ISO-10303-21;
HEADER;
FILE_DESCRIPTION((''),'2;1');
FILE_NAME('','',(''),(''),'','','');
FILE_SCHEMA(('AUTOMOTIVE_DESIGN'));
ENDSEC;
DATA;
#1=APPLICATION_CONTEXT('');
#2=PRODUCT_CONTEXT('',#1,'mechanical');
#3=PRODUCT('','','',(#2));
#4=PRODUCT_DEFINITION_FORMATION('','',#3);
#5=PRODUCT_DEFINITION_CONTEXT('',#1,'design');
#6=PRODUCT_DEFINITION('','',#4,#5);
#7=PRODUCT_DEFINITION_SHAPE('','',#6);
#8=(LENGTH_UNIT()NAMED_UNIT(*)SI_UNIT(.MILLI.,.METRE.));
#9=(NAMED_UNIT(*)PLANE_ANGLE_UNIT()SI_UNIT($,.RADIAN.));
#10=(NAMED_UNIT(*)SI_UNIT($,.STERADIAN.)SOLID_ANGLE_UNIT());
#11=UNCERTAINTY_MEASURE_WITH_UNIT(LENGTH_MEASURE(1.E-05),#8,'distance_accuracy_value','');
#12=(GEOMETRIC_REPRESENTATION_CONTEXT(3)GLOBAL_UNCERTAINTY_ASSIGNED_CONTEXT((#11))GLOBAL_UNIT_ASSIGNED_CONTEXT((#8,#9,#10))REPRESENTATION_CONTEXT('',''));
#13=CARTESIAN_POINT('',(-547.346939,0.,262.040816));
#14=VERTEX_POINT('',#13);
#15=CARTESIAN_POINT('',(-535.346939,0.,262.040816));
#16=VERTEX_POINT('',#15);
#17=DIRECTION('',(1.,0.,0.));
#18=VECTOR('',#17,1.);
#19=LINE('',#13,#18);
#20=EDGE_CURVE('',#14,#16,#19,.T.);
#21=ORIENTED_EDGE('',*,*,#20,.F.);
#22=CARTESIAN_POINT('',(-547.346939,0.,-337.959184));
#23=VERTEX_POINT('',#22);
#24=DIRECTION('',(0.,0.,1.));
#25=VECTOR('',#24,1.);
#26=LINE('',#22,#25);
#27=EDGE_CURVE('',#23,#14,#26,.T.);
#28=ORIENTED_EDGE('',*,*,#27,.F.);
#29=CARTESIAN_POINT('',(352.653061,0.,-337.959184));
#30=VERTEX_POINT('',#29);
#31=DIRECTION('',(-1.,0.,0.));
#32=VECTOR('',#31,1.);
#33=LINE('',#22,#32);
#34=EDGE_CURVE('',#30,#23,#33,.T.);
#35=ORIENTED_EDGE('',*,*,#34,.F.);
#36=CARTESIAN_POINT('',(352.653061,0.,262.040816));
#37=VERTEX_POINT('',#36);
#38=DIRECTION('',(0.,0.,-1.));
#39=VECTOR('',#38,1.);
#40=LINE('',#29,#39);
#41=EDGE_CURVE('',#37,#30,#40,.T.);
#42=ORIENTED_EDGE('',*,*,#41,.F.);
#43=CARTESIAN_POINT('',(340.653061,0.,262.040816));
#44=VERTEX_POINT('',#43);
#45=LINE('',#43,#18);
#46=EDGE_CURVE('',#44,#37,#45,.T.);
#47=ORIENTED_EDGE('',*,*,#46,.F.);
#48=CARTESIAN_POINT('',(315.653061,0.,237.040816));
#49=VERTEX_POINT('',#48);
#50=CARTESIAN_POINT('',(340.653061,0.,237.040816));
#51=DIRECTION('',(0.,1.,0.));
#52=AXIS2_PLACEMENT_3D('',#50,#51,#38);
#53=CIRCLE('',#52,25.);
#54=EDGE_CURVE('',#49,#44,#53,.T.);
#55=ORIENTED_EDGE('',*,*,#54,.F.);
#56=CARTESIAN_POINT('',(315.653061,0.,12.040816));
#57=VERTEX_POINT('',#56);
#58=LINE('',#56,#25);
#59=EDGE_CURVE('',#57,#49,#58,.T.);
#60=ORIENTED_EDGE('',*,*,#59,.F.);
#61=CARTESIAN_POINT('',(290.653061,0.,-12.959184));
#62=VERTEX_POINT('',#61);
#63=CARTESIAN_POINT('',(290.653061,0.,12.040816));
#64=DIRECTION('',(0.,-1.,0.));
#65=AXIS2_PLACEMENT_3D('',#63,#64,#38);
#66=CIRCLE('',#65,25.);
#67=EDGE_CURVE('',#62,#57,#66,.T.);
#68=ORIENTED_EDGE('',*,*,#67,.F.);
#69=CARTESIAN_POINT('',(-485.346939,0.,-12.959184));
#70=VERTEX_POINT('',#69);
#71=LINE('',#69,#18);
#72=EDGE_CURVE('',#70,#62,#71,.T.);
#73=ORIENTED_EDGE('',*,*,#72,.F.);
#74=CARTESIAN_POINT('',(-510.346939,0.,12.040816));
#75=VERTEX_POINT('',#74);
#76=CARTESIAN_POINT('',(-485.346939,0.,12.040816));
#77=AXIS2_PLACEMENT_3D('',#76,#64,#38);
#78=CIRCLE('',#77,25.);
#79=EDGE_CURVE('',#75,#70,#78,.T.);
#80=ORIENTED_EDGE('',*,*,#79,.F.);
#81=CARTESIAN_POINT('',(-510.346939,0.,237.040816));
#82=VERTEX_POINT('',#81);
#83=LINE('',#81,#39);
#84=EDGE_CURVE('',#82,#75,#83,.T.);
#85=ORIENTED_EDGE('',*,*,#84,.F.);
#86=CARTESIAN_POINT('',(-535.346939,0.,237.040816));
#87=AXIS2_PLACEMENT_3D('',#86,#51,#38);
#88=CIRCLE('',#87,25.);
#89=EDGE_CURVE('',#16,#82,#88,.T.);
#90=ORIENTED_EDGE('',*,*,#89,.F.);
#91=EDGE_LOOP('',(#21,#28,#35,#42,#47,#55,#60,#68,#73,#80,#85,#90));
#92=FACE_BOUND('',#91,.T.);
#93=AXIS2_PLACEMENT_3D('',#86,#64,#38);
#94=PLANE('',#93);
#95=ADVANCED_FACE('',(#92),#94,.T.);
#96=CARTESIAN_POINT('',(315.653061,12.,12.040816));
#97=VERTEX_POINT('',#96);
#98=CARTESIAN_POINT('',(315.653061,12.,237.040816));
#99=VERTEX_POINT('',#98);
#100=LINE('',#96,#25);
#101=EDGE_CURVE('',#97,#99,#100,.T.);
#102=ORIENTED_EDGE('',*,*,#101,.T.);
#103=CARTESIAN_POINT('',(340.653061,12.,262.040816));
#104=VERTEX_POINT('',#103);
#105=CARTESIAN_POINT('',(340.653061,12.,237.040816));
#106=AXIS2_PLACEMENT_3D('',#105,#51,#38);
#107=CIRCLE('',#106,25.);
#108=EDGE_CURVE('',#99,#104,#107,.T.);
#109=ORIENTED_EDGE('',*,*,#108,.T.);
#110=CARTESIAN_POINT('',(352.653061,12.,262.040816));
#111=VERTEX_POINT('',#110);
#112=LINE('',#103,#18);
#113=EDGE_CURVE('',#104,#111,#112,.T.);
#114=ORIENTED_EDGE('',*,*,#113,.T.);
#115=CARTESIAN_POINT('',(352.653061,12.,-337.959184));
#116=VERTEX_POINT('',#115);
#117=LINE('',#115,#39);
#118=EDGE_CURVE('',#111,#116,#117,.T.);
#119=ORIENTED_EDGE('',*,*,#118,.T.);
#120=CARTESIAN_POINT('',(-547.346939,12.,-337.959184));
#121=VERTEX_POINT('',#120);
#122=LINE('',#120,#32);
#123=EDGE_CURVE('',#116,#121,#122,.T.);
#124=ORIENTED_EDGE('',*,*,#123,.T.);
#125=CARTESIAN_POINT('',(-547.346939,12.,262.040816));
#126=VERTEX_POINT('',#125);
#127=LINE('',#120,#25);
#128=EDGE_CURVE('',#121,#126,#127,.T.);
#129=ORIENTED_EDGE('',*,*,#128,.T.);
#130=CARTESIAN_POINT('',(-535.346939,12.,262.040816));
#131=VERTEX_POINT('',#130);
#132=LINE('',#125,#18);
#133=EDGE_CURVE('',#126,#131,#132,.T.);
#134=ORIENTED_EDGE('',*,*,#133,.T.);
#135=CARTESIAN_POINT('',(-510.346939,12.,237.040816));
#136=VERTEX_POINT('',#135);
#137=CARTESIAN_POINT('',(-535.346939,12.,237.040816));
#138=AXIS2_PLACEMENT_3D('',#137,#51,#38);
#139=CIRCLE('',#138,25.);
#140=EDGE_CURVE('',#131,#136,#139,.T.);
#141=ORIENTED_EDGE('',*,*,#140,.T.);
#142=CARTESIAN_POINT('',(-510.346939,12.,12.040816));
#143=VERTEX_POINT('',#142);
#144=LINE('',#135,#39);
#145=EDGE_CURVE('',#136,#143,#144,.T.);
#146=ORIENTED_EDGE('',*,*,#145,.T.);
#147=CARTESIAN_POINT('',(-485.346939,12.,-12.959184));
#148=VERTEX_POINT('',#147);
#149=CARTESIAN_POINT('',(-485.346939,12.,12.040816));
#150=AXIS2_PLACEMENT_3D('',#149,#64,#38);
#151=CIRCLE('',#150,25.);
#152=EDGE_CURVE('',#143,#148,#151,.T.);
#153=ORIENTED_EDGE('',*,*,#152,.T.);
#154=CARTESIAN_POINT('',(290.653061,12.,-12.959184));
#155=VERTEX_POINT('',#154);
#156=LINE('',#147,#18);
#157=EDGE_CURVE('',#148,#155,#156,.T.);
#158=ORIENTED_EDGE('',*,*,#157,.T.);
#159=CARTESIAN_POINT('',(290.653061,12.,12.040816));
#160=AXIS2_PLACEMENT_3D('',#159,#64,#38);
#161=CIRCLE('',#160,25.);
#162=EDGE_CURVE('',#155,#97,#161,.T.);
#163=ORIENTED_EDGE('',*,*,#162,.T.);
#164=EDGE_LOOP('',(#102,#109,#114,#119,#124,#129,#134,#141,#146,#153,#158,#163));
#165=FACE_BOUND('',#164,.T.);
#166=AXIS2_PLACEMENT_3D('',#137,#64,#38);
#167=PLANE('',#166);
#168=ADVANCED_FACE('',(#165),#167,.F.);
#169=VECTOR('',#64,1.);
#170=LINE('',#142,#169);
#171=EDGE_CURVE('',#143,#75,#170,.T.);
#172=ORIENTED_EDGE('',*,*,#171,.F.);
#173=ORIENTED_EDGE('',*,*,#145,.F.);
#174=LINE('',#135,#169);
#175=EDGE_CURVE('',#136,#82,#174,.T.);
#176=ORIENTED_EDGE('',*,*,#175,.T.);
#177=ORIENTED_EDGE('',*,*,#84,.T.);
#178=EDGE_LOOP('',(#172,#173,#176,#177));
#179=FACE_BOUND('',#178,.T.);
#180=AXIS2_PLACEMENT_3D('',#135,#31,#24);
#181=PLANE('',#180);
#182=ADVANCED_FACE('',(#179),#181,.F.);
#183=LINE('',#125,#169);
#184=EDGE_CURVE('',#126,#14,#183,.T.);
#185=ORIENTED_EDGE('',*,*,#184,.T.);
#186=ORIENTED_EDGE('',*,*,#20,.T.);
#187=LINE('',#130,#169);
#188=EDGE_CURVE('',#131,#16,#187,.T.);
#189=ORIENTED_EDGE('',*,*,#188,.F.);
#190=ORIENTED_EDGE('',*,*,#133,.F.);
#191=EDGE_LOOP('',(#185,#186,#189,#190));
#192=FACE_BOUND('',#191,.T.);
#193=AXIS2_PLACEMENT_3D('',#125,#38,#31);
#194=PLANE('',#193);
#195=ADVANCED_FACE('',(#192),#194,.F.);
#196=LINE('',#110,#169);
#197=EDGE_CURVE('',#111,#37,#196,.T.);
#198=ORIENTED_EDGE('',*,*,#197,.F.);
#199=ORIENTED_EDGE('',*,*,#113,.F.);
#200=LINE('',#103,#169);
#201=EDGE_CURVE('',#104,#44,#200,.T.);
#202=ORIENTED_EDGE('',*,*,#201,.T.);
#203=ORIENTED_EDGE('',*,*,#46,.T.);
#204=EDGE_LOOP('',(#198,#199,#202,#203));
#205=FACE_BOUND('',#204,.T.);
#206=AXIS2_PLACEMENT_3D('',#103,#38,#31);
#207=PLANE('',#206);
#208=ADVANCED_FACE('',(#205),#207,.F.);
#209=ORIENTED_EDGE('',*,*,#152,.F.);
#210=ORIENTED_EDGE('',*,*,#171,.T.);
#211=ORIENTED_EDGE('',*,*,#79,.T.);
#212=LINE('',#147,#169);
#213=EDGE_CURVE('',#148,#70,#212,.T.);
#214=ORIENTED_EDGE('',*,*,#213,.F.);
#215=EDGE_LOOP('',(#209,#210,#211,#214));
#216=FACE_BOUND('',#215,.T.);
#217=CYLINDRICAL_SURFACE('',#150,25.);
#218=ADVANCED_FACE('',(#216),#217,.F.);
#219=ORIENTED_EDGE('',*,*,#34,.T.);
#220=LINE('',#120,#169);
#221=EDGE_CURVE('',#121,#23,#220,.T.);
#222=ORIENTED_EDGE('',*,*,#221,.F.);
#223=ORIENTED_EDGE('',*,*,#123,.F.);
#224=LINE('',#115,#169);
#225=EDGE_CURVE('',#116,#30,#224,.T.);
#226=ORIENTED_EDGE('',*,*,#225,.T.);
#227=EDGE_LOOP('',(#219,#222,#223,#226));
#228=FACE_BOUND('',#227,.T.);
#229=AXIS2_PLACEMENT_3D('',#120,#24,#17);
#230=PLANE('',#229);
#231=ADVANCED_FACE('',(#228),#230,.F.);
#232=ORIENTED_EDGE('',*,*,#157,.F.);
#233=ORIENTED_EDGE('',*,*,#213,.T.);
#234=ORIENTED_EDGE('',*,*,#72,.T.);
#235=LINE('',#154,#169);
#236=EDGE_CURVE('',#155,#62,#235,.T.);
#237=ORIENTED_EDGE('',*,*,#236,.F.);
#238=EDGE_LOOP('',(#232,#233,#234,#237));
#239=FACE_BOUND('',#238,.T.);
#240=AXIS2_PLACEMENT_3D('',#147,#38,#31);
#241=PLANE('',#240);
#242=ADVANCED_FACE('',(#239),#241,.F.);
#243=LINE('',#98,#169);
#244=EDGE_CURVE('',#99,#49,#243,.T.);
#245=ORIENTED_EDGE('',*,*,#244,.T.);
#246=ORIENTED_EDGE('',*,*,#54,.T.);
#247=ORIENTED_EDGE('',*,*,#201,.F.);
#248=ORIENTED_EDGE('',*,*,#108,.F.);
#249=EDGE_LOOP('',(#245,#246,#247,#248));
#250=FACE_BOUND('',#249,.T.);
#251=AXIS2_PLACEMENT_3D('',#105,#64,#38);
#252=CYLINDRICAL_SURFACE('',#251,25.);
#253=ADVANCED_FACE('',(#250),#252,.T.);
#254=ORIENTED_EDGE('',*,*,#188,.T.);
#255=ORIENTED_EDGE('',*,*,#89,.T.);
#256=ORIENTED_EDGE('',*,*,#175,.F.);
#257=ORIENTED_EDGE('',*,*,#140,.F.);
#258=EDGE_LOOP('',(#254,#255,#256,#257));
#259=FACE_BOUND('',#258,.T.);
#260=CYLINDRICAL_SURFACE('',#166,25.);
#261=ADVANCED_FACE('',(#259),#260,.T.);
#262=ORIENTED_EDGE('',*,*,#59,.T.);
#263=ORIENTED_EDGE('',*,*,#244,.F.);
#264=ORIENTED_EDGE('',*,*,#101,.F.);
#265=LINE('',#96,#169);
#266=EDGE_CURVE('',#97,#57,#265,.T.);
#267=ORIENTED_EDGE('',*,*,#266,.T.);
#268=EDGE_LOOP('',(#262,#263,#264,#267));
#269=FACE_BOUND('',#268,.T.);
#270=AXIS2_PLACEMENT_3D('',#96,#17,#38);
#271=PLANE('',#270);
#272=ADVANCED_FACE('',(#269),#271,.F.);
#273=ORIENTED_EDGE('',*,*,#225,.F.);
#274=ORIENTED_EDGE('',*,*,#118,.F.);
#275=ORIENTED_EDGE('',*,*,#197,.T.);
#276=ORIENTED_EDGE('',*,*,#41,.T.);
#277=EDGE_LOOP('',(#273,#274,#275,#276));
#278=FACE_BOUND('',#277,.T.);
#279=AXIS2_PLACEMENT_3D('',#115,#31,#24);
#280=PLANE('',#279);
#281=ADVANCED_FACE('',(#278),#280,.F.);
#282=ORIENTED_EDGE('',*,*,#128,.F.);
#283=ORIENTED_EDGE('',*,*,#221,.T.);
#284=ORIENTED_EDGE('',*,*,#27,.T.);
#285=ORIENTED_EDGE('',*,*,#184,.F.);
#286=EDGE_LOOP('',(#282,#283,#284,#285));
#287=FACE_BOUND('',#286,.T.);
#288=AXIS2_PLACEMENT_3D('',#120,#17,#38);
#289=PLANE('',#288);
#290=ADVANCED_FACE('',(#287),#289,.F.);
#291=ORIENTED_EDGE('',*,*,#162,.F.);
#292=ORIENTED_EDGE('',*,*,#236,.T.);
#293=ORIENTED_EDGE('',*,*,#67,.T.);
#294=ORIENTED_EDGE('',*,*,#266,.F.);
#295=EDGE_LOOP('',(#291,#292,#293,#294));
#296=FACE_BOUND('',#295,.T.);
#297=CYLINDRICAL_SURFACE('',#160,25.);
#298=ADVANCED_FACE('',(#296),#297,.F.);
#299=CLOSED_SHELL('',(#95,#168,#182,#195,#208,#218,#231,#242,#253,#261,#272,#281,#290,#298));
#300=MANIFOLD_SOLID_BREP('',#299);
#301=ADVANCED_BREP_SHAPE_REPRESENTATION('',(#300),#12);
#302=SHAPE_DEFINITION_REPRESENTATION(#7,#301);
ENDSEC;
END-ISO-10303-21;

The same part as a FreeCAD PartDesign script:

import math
import FreeCAD as App
import Part
import Sketcher

V = App.Vector
Q = App.Units.Quantity

doc = App.newDocument("Part")
params = doc.addObject("Spreadsheet::Sheet", "Params")
for row, (alias, value) in enumerate([
    ("sketch1_radius", "25 mm"),
    ("sketch1_width", "900 mm"),
    ("sketch1_width2", "12 mm"),
    ("sketch1_height", "600 mm"),
    ("sketch1_height2", "225 mm"),
    ("pad1_length", "12 mm"),
], start=1):
    params.set(f"A{row}", alias)
    params.set(f"B{row}", "=" + value)
    params.setAlias(f"B{row}", alias)

body = doc.addObject("PartDesign::Body", "Body")

# Sketch on XZ plane
sketch1 = body.newObject("Sketcher::SketchObject", "Sketch")
sketch1.AttachmentSupport = (doc.getObject("XZ_Plane"), [""])
sketch1.MapMode = "FlatFace"
sketch1.addGeometry([
    Part.LineSegment(V(352.653061, -337.959184, 0), V(-547.346939, -337.959184, 0)),  # 0
    Part.LineSegment(V(-547.346939, -337.959184, 0), V(-547.346939, 262.040816, 0)),  # 1
    Part.LineSegment(V(-547.346939, 262.040816, 0), V(-535.346939, 262.040816, 0)),  # 2
    Part.ArcOfCircle(Part.Circle(V(-535.346939, 237.040816, 0), V(0, 0, 1), 25), math.radians(0), math.radians(90)),  # 3
    Part.LineSegment(V(-510.346939, 237.040816, 0), V(-510.346939, 12.040816, 0)),  # 4
    Part.ArcOfCircle(Part.Circle(V(-485.346939, 12.040816, 0), V(0, 0, 1), 25), math.radians(-180), math.radians(-90)),  # 5
    Part.LineSegment(V(-485.346939, -12.959184, 0), V(290.653061, -12.959184, 0)),  # 6
    Part.ArcOfCircle(Part.Circle(V(290.653061, 12.040816, 0), V(0, 0, 1), 25), math.radians(-90), math.radians(0)),  # 7
    Part.LineSegment(V(315.653061, 12.040816, 0), V(315.653061, 237.040816, 0)),  # 8
    Part.ArcOfCircle(Part.Circle(V(340.653061, 237.040816, 0), V(0, 0, 1), 25), math.radians(90), math.radians(180)),  # 9
    Part.LineSegment(V(340.653061, 262.040816, 0), V(352.653061, 262.040816, 0)),  # 10
    Part.LineSegment(V(352.653061, 262.040816, 0), V(352.653061, -337.959184, 0)),  # 11
], False)
sketch1.addConstraint([
    Sketcher.Constraint("Coincident", 0, 2, 1, 1),
    Sketcher.Constraint("Coincident", 1, 2, 2, 1),
    Sketcher.Constraint("Tangent", 2, 2, 3, 2),
    Sketcher.Constraint("Tangent", 3, 1, 4, 1),
    Sketcher.Constraint("Tangent", 4, 2, 5, 1),
    Sketcher.Constraint("Tangent", 5, 2, 6, 1),
    Sketcher.Constraint("Tangent", 6, 2, 7, 1),
    Sketcher.Constraint("Tangent", 7, 2, 8, 1),
    Sketcher.Constraint("Tangent", 8, 2, 9, 2),
    Sketcher.Constraint("Tangent", 9, 1, 10, 1),
    Sketcher.Constraint("Coincident", 10, 2, 11, 1),
    Sketcher.Constraint("Coincident", 11, 2, 0, 1),
    Sketcher.Constraint("Horizontal", 0),
    Sketcher.Constraint("Vertical", 1),
    Sketcher.Constraint("Horizontal", 2),
    Sketcher.Constraint("Vertical", 4),
    Sketcher.Constraint("Horizontal", 6),
    Sketcher.Constraint("Vertical", 8),
    Sketcher.Constraint("Horizontal", 10),
    Sketcher.Constraint("Vertical", 11),
    Sketcher.Constraint("Equal", 3, 5),
    Sketcher.Constraint("Equal", 5, 7),
    Sketcher.Constraint("Equal", 7, 9),
    Sketcher.Constraint("Horizontal", 3, 3, 9, 3),
    Sketcher.Constraint("Equal", 2, 10),
    Sketcher.Constraint("Radius", 3, Q("25 mm")),
    Sketcher.Constraint("DistanceX", 0, 2, 0, 1, Q("900 mm")),
    Sketcher.Constraint("DistanceX", 2, 1, 2, 2, Q("12 mm")),
    Sketcher.Constraint("DistanceY", 1, 1, 1, 2, Q("600 mm")),
    Sketcher.Constraint("DistanceY", 4, 2, 4, 1, Q("225 mm")),
    Sketcher.Constraint("DistanceX", 3, 3, -1, 1, Q("535.346939 mm")),
    Sketcher.Constraint("DistanceY", -1, 1, 3, 3, Q("237.040816 mm")),
])
sketch1.setExpression("Constraints[25]", "Params.sketch1_radius")
sketch1.setExpression("Constraints[26]", "Params.sketch1_width")
sketch1.setExpression("Constraints[27]", "Params.sketch1_width2")
sketch1.setExpression("Constraints[28]", "Params.sketch1_height")
sketch1.setExpression("Constraints[29]", "Params.sketch1_height2")
pad1 = body.newObject("PartDesign::Pad", "Pad")
pad1.Profile = sketch1
pad1.setExpression("Length", "Params.pad1_length")
pad1.Reversed = True

doc.recompute()
